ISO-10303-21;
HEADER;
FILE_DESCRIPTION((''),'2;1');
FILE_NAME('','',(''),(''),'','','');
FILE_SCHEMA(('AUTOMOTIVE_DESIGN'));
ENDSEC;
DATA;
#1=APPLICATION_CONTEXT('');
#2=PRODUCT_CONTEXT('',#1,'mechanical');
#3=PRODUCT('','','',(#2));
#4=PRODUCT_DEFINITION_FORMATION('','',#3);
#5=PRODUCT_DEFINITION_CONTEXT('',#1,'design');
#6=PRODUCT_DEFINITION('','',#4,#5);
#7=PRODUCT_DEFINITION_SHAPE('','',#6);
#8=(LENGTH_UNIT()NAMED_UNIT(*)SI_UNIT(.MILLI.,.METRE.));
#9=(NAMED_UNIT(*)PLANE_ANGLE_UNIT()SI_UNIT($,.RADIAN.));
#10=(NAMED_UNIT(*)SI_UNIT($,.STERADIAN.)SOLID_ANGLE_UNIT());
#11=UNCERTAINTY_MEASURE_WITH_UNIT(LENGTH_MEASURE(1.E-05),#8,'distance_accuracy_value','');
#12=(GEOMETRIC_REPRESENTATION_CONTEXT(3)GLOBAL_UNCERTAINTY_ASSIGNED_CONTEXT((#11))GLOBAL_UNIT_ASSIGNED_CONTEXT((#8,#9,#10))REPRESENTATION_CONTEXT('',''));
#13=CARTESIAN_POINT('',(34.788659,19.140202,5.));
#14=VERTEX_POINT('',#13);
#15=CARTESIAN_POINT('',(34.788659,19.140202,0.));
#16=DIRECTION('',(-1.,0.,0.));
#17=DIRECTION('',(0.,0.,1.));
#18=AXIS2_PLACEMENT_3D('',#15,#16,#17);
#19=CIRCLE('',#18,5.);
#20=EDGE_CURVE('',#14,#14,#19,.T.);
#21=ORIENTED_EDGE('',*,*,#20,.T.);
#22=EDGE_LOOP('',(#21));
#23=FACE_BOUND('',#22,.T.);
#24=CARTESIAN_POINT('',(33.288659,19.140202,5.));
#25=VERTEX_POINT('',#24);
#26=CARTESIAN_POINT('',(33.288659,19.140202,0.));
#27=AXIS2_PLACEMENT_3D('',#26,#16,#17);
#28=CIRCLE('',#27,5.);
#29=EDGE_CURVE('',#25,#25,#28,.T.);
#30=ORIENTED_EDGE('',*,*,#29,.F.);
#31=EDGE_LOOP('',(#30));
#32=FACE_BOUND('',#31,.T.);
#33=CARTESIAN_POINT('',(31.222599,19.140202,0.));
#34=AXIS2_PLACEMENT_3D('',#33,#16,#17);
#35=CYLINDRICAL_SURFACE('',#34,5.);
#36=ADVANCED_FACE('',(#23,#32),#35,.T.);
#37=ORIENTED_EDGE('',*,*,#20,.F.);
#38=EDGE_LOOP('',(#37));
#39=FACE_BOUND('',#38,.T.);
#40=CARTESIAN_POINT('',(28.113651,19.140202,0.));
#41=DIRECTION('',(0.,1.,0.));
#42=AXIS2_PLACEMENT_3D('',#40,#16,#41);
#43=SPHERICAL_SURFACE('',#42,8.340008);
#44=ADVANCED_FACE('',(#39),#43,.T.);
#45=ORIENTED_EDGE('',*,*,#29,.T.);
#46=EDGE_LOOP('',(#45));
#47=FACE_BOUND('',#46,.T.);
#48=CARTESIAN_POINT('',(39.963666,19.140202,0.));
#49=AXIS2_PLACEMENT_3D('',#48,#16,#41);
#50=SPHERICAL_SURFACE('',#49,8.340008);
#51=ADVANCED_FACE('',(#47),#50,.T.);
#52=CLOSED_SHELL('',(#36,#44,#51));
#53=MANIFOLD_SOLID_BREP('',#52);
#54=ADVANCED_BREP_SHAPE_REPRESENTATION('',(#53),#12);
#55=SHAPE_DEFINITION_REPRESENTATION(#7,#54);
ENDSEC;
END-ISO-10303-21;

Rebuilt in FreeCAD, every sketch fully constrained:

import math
import FreeCAD as App
import Part
import Sketcher
from FreeCAD import Vector

doc = App.newDocument("Part")
params = doc.addObject("Spreadsheet::Sheet", "Params")
for row, (alias, value) in enumerate([
    ("sketch1_width", "1.5 mm"),
    ("sketch1_width2", "4.83 mm"),
    ("revolution_angle", "360 deg"),
], start=1):
    params.set(f"A{row}", alias)
    params.set(f"B{row}", "=" + value)
    params.setAlias(f"B{row}", alias)

body = doc.addObject("PartDesign::Body", "Body")

# Sketch on XY plane
sketch1 = body.newObject("Sketcher::SketchObject", "Sketch")
sketch1.AttachmentSupport = (doc.getObject("XY_Plane"), [""])
sketch1.MapMode = "FlatFace"
sketch1.addGeometry(Part.LineSegment(Vector(34.8, 24.1, 0), Vector(33.3, 24.1, 0)), False)
sketch1.addGeometry(Part.ArcOfCircle(Part.Circle(Vector(40, 19.1, 0), Vector(0, 0, 1), 8.3), math.radians(143), math.radians(180)), False)
sketch1.addGeometry(Part.LineSegment(Vector(31.6, 19.1, 0), Vector(36.5, 19.1, 0)), False)
sketch1.addGeometry(Part.ArcOfCircle(Part.Circle(Vector(28.1, 19.1, 0), Vector(0, 0, 1), 8.3), math.radians(0), math.radians(37)), False)
sketch1.addGeometry(Part.LineSegment(Vector(28.1, 19.1, 0), Vector(40, 19.1, 0)), True)  # axis
sketch1.addConstraint(Sketcher.Constraint("Coincident", 0, 2, 1, 1))
sketch1.addConstraint(Sketcher.Constraint("Coincident", 1, 2, 2, 1))
sketch1.addConstraint(Sketcher.Constraint("Coincident", 2, 2, 3, 1))
sketch1.addConstraint(Sketcher.Constraint("Coincident", 3, 2, 0, 1))
sketch1.addConstraint(Sketcher.Constraint("Horizontal", 0))
sketch1.addConstraint(Sketcher.Constraint("Horizontal", 2))
sketch1.addConstraint(Sketcher.Constraint("Horizontal", 4))
sketch1.addConstraint(Sketcher.Constraint("Coincident", 4, 1, 3, 3))
sketch1.addConstraint(Sketcher.Constraint("Coincident", 4, 2, 1, 3))
sketch1.addConstraint(Sketcher.Constraint("Equal", 1, 3))
sketch1.addConstraint(Sketcher.Constraint("Horizontal", 3, 3, 1, 2))
sketch1.addConstraint(Sketcher.Constraint("DistanceX", 0, 2, 0, 1, 1.5))
sketch1.addConstraint(Sketcher.Constraint("DistanceY", 3, 3, 0, 2, 5.0))
sketch1.addConstraint(Sketcher.Constraint("DistanceX", 2, 1, 2, 2, 4.83))
sketch1.addConstraint(Sketcher.Constraint("DistanceY", -1, 1, 1, 3, 19.140202))
sketch1.addConstraint(Sketcher.Constraint("DistanceX", -1, 1, 3, 3, 28.113651))
sketch1.setExpression("Constraints[11]", "Params.sketch1_width")
sketch1.setExpression("Constraints[13]", "Params.sketch1_width2")
revolution = body.newObject("PartDesign::Revolution", "Revolution")
revolution.Profile = sketch1
revolution.ReferenceAxis = (sketch1, ["Axis0"])
revolution.setExpression("Angle", "Params.revolution_angle")

doc.recompute()
